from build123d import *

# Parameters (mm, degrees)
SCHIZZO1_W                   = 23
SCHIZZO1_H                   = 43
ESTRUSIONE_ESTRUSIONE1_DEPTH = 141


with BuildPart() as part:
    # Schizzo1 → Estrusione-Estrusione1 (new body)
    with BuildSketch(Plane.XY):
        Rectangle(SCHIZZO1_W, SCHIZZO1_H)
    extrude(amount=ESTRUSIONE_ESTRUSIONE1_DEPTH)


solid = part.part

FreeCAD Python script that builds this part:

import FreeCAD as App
import Part
import Sketcher
from FreeCAD import Vector


def add_polygon(sketch, points):
    """Adds a closed chain of lines whose ends are joined by coincident constraints."""
    first, n = sketch.GeometryCount, len(points)
    for a, b in zip(points, points[1:] + points[:1]):
        sketch.addGeometry(Part.LineSegment(App.Vector(*a, 0), App.Vector(*b, 0)), False)
    for i in range(n):
        sketch.addConstraint(Sketcher.Constraint("Coincident", first + i, 2, first + (i + 1) % n, 1))

doc = App.newDocument("Part")
body = doc.addObject("PartDesign::Body", "Body")

sketch1 = doc.addObject("Sketcher::SketchObject", "Sketch")
body.addObject(sketch1)
sketch1.AttachmentSupport = (doc.XY_Plane, [""])
sketch1.MapMode = "FlatFace"
add_polygon(sketch1, [(-12, 22), (-12, -22), (12, -22), (12, 22)])
sketch1.addConstraint([
    Sketcher.Constraint("Vertical", 0),
    Sketcher.Constraint("Horizontal", 1),
    Sketcher.Constraint("Vertical", 2),
    Sketcher.Constraint("Horizontal", 3),
    Sketcher.Constraint("Symmetric", 0, 2, 2, 2, -1, 1),
    Sketcher.Constraint("DistanceX", 1, 1, 1, 2, 23.0),
    Sketcher.Constraint("DistanceY", 0, 2, 0, 1, 43.0),
])
pad1 = doc.addObject("PartDesign::Pad", "Pad")
body.addObject(pad1)
pad1.Profile = sketch1
pad1.Length = 141

doc.recompute()
